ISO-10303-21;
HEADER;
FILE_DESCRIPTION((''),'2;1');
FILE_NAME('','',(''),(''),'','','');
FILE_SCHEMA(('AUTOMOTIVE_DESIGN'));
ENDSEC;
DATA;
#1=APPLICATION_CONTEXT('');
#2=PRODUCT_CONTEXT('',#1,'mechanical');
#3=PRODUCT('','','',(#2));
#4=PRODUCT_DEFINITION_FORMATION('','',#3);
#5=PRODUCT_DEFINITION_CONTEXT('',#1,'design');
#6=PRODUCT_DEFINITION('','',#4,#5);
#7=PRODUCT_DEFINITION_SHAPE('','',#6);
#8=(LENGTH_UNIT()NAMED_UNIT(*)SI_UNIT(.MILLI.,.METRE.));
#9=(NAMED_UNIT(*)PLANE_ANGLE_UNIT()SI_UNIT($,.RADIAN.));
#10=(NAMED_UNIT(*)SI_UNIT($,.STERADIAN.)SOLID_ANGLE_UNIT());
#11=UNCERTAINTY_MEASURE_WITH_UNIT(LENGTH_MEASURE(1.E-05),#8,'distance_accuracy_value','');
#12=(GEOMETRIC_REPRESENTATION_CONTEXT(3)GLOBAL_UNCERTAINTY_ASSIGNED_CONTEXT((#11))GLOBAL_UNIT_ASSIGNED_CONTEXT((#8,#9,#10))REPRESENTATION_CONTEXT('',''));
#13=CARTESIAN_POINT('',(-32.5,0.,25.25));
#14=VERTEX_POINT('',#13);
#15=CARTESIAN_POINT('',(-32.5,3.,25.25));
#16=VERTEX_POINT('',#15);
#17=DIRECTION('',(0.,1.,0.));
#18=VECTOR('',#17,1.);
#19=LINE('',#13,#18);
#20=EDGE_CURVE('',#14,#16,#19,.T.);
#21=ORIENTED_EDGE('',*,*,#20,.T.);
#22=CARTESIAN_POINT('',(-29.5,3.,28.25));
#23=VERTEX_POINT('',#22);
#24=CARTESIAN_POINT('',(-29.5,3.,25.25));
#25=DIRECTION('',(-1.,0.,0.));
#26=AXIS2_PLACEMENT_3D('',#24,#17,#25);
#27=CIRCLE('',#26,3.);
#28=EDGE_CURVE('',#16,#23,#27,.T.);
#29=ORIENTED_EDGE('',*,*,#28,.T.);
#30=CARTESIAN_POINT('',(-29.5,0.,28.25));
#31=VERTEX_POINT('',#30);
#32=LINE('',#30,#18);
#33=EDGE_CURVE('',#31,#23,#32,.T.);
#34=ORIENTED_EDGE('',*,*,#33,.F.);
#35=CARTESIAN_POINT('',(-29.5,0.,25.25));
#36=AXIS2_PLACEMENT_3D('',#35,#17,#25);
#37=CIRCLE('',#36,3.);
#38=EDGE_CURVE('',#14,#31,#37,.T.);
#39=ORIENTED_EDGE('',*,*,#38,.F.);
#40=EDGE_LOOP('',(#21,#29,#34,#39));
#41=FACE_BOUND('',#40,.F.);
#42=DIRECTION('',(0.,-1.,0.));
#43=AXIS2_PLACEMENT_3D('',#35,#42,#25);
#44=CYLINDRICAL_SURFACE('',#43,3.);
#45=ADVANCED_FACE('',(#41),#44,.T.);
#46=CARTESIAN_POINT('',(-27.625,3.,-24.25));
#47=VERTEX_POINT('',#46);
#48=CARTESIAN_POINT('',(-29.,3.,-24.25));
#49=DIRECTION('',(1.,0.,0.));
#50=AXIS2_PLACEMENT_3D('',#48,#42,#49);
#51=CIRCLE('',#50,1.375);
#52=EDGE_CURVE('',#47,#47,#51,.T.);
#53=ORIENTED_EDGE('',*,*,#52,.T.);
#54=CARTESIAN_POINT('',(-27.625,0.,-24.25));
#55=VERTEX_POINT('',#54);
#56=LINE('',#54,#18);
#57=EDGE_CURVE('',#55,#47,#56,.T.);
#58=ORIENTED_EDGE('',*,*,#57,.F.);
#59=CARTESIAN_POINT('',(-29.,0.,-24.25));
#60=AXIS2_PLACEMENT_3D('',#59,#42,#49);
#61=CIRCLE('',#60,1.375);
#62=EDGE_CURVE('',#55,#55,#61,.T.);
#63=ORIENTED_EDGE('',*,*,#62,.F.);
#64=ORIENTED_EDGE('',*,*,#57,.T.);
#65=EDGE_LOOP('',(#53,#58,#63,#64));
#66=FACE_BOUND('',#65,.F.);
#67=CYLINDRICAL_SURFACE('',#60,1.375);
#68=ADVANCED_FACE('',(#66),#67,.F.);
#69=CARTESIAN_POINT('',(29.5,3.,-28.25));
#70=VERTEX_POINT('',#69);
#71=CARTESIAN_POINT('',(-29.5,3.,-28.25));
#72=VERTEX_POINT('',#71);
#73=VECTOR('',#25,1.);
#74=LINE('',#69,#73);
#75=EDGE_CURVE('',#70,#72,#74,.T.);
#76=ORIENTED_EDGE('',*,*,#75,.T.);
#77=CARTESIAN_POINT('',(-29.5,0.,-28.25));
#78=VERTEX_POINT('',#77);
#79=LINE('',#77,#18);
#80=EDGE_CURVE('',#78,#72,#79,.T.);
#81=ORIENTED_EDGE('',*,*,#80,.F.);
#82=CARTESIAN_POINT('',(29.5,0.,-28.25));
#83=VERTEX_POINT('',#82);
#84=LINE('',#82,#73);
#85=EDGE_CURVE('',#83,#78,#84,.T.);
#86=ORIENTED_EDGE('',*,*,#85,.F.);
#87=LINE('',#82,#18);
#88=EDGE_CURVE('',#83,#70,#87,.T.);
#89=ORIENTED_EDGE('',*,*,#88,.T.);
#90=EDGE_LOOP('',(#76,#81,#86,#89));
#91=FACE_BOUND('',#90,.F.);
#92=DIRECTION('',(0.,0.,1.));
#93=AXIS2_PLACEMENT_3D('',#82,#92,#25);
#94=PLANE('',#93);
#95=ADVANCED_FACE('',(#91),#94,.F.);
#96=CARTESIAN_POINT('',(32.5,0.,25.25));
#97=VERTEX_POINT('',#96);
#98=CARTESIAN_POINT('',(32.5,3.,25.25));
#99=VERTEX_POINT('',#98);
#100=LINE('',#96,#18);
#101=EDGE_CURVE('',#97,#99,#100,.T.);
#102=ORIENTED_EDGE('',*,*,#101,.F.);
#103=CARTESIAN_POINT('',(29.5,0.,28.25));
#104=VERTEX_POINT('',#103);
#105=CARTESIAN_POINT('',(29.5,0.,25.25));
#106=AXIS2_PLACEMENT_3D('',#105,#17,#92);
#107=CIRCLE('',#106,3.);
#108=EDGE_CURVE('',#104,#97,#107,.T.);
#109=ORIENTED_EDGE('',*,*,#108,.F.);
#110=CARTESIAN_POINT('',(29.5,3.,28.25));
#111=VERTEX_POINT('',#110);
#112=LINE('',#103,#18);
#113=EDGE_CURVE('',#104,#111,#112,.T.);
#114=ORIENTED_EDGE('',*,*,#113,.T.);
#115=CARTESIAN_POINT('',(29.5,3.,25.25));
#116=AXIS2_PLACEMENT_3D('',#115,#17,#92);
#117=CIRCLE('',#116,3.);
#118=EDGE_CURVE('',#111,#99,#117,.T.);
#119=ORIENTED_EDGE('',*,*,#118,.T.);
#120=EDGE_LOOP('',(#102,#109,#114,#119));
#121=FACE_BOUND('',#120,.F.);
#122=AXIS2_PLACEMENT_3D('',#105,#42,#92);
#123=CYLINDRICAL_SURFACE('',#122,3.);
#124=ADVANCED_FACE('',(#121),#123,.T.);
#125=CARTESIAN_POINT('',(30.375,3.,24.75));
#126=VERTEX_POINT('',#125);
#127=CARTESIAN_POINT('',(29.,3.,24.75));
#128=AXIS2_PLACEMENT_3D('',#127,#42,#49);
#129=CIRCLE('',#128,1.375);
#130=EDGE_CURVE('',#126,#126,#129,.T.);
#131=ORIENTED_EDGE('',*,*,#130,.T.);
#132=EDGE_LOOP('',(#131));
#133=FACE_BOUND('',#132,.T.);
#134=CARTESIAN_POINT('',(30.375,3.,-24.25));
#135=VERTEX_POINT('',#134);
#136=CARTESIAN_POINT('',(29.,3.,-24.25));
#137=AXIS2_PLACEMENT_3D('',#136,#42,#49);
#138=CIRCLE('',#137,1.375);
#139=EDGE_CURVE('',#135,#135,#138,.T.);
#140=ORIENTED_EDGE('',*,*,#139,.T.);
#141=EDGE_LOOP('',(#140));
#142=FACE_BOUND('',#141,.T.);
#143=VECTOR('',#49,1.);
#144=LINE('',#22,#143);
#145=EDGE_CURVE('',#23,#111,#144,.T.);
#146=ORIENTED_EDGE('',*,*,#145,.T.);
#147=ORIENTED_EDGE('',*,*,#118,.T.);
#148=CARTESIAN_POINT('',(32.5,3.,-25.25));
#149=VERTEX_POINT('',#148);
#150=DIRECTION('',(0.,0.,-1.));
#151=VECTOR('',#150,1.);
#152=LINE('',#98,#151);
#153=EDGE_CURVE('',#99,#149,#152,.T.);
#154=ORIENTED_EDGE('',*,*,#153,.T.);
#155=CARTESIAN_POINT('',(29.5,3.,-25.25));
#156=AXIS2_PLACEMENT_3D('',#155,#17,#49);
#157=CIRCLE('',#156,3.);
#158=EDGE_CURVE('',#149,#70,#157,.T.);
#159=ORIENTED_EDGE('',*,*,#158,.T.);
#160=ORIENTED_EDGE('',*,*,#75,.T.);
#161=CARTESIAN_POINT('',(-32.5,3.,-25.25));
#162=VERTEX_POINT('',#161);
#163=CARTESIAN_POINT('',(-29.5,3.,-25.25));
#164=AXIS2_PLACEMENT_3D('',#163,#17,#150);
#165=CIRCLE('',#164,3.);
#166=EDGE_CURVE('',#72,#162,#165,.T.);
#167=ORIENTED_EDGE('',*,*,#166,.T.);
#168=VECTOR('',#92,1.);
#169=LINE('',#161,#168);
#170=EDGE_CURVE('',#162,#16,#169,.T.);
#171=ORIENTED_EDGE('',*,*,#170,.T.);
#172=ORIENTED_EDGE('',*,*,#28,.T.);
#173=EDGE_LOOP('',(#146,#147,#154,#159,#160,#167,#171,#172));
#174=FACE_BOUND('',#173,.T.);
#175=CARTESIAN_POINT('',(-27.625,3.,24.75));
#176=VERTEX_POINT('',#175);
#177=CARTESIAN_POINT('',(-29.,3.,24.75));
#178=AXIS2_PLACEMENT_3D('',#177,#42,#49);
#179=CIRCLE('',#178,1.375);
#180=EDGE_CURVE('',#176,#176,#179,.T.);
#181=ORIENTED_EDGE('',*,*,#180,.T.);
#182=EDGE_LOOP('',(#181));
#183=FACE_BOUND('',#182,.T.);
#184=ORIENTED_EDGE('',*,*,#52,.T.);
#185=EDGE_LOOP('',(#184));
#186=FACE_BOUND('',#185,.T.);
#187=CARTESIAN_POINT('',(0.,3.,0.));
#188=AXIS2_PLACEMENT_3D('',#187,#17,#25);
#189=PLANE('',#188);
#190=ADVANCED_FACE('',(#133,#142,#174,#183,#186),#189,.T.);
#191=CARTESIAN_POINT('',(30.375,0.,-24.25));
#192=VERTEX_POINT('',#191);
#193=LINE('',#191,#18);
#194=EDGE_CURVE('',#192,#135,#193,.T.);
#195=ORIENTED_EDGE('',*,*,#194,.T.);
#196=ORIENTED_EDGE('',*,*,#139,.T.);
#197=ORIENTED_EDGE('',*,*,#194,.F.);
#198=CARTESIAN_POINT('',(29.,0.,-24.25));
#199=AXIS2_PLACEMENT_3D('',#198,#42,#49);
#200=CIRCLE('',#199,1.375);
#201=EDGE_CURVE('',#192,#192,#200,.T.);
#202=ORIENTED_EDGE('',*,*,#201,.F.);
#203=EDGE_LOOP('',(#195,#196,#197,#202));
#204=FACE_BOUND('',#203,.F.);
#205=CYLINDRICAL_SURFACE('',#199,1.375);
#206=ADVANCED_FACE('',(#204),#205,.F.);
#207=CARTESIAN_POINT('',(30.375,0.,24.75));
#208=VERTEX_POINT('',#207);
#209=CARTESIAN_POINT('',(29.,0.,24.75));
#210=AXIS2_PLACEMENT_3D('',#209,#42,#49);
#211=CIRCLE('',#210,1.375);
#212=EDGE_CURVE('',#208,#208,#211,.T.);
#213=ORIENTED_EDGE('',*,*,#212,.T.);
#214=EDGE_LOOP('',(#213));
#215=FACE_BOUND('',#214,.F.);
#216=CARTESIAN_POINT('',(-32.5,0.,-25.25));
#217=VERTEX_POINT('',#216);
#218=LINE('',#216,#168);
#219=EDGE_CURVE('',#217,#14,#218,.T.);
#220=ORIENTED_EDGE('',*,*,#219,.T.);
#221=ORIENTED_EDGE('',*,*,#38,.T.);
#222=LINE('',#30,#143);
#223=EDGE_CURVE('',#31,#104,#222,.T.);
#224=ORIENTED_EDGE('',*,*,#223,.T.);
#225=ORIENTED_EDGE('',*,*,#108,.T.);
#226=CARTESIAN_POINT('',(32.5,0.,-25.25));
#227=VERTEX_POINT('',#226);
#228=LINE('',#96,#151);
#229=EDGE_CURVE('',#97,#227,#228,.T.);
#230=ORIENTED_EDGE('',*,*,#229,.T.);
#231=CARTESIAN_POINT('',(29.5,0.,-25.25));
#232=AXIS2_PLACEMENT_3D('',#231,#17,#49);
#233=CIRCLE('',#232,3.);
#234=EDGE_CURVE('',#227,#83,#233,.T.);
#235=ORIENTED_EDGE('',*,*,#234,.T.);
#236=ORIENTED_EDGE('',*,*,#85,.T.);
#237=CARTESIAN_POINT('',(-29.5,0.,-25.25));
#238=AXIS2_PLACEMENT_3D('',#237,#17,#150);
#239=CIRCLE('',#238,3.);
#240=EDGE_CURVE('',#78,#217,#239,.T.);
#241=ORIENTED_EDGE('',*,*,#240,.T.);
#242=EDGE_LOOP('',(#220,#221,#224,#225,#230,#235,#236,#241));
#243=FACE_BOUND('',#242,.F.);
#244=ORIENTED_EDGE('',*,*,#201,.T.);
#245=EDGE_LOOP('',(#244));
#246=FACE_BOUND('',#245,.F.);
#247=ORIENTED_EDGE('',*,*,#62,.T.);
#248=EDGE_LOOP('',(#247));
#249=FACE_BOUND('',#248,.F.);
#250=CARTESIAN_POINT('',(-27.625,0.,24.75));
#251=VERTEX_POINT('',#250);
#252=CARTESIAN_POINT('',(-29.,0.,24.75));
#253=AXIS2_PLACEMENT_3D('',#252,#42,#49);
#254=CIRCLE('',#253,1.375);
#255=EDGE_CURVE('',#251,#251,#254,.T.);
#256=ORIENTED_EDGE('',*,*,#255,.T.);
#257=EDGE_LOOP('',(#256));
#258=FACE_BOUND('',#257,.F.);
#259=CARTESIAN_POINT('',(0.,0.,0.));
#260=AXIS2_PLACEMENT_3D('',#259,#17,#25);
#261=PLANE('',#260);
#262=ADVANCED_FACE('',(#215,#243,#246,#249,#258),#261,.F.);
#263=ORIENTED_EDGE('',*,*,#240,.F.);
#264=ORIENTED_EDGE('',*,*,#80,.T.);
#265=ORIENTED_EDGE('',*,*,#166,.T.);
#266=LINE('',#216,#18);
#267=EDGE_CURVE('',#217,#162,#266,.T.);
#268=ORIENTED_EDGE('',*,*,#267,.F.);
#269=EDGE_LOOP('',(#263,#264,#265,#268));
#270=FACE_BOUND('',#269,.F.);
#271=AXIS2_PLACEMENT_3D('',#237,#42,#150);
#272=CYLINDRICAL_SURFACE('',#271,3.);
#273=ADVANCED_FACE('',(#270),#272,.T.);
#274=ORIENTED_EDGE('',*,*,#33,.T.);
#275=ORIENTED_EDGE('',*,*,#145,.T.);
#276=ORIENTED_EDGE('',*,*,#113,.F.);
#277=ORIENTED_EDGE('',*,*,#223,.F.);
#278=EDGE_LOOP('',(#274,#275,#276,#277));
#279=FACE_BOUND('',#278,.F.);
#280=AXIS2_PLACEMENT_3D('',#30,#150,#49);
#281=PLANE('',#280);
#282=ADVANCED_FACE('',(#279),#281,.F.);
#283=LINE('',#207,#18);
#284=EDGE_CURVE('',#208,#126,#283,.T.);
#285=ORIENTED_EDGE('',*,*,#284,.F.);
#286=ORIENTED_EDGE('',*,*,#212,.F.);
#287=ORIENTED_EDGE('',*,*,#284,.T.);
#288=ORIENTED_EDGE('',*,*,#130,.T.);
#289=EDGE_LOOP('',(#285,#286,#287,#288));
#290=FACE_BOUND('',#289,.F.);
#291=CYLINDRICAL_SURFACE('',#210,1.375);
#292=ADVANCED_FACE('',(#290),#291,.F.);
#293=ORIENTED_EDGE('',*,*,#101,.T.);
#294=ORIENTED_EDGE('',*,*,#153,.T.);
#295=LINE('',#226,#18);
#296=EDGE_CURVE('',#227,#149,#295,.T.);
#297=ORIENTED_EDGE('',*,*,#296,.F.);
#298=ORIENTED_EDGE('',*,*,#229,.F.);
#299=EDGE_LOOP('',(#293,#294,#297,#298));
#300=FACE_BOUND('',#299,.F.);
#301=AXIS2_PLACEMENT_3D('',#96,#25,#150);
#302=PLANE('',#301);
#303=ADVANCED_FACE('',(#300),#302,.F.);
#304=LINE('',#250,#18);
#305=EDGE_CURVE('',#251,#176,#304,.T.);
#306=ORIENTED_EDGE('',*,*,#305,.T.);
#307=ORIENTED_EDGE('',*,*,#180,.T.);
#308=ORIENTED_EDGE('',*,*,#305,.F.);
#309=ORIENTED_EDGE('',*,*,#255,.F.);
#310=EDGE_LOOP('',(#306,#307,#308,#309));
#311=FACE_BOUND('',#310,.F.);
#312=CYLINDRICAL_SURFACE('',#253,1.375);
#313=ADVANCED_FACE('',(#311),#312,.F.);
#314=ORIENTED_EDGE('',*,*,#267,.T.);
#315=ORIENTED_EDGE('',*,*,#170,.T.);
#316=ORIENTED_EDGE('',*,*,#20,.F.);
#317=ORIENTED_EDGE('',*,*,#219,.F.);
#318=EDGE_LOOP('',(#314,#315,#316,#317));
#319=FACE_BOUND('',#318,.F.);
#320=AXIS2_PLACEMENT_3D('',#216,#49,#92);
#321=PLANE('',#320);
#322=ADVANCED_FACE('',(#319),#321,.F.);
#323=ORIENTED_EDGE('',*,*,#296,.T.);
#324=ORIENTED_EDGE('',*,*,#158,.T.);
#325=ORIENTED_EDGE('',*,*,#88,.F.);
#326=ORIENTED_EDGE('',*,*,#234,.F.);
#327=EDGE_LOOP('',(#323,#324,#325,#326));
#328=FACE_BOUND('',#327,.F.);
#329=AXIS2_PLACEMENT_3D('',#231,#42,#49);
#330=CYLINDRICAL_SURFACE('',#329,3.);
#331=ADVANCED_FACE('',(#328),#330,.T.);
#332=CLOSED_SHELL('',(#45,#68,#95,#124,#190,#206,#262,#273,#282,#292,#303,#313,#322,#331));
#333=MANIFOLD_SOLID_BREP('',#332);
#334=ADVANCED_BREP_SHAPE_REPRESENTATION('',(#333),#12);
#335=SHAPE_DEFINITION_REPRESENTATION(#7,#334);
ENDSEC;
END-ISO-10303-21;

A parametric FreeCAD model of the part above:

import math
import FreeCAD as App
import Part
import Sketcher
Q = App.Units.Quantity

doc = App.newDocument("Part")
params = doc.addObject("Spreadsheet::Sheet", "Params")
for row, (alias, value) in enumerate([
    ("sketch1_radius", "3 mm"),
    ("sketch1_width", "59 mm"),
    ("pad1_length", "3 mm"),
    ("sketch2_diameter", "2.75 mm"),
    ("pocket1_length", "3 mm"),
], start=1):
    params.set(f"A{row}", alias)
    params.set(f"B{row}", "=" + value)
    params.setAlias(f"B{row}", alias)

body = doc.addObject("PartDesign::Body", "Body")

# Sketch on XZ plane
sketch1 = body.newObject("Sketcher::SketchObject", "Sketch")
sketch1.AttachmentSupport = (doc.getObject("XZ_Plane"), [""])
sketch1.MapMode = "FlatFace"
sketch1.addGeometry(Part.ArcOfCircle(Part.Circle(App.Vector(-29.5, 25.2, 0), App.Vector(0, 0, 1), 3), math.radians(90), math.radians(180)), False)
sketch1.addGeometry(Part.LineSegment(App.Vector(-29.5, 28.2, 0), App.Vector(29.5, 28.2, 0)), False)
sketch1.addGeometry(Part.ArcOfCircle(Part.Circle(App.Vector(29.5, 25.2, 0), App.Vector(0, 0, 1), 3), math.radians(0), math.radians(90)), False)
sketch1.addGeometry(Part.LineSegment(App.Vector(32.5, 25.2, 0), App.Vector(32.5, -25.2, 0)), False)
sketch1.addGeometry(Part.ArcOfCircle(Part.Circle(App.Vector(29.5, -25.2, 0), App.Vector(0, 0, 1), 3), math.radians(-90), math.radians(0)), False)
sketch1.addGeometry(Part.LineSegment(App.Vector(29.5, -28.2, 0), App.Vector(-29.5, -28.2, 0)), False)
sketch1.addGeometry(Part.ArcOfCircle(Part.Circle(App.Vector(-29.5, -25.2, 0), App.Vector(0, 0, 1), 3), math.radians(180), math.radians(270)), False)
sketch1.addGeometry(Part.LineSegment(App.Vector(-32.5, -25.2, 0), App.Vector(-32.5, 25.2, 0)), False)
sketch1.addConstraint(Sketcher.Constraint("Tangent", 0, 1, 1, 1))
sketch1.addConstraint(Sketcher.Constraint("Tangent", 1, 2, 2, 2))
sketch1.addConstraint(Sketcher.Constraint("Tangent", 2, 1, 3, 1))
sketch1.addConstraint(Sketcher.Constraint("Tangent", 3, 2, 4, 2))
sketch1.addConstraint(Sketcher.Constraint("Tangent", 4, 1, 5, 1))
sketch1.addConstraint(Sketcher.Constraint("Tangent", 5, 2, 6, 2))
sketch1.addConstraint(Sketcher.Constraint("Tangent", 6, 1, 7, 1))
sketch1.addConstraint(Sketcher.Constraint("Tangent", 7, 2, 0, 2))
sketch1.addConstraint(Sketcher.Constraint("Horizontal", 1))
sketch1.addConstraint(Sketcher.Constraint("Vertical", 3))
sketch1.addConstraint(Sketcher.Constraint("Horizontal", 5))
sketch1.addConstraint(Sketcher.Constraint("Vertical", 7))
sketch1.addConstraint(Sketcher.Constraint("Equal", 0, 2))
sketch1.addConstraint(Sketcher.Constraint("Equal", 2, 4))
sketch1.addConstraint(Sketcher.Constraint("Equal", 4, 6))
sketch1.addConstraint(Sketcher.Constraint("Symmetric", 0, 3, 4, 3, -1, 1))
sketch1.addConstraint(Sketcher.Constraint("Radius", 0, Q("3 mm")))
sketch1.addConstraint(Sketcher.Constraint("DistanceY", 4, 1, 1, 2, Q("56.5 mm")))
sketch1.addConstraint(Sketcher.Constraint("DistanceX", 1, 1, 1, 2, Q("59 mm")))
sketch1.setExpression("Constraints[16]", "Params.sketch1_radius")
sketch1.setExpression("Constraints[18]", "Params.sketch1_width")
pad1 = body.newObject("PartDesign::Pad", "Pad")
pad1.Profile = sketch1
pad1.setExpression("Length", "Params.pad1_length")
pad1.Reversed = True

# Sketch on XZ plane
sketch2 = body.newObject("Sketcher::SketchObject", "Sketch001")
sketch2.AttachmentSupport = (doc.getObject("XZ_Plane"), [""])
sketch2.MapMode = "FlatFace"
sketch2.addGeometry(Part.Circle(App.Vector(-29, 24.8, 0), App.Vector(0, 0, 1), 1.4), False)
sketch2.addGeometry(Part.Circle(App.Vector(29, 24.8, 0), App.Vector(0, 0, 1), 1.4), False)
sketch2.addGeometry(Part.Circle(App.Vector(29, -24.2, 0), App.Vector(0, 0, 1), 1.4), False)
sketch2.addGeometry(Part.Circle(App.Vector(-29, -24.2, 0), App.Vector(0, 0, 1), 1.4), False)
sketch2.addConstraint(Sketcher.Constraint("Equal", 0, 1))
sketch2.addConstraint(Sketcher.Constraint("Equal", 1, 2))
sketch2.addConstraint(Sketcher.Constraint("Equal", 2, 3))
sketch2.addConstraint(Sketcher.Constraint("Symmetric", 0, 3, 1, 3, -2))
sketch2.addConstraint(Sketcher.Constraint("Symmetric", 2, 3, 3, 3, -2))
sketch2.addConstraint(Sketcher.Constraint("Vertical", 1, 3, 2, 3))
sketch2.addConstraint(Sketcher.Constraint("Diameter", 0, Q("2.75 mm")))
sketch2.addConstraint(Sketcher.Constraint("DistanceX", 0, 3, 1, 3, Q("58 mm")))
sketch2.addConstraint(Sketcher.Constraint("DistanceY", 2, 3, 1, 3, Q("49 mm")))
sketch2.addConstraint(Sketcher.Constraint("DistanceY", -1, 1, 0, 3, Q("24.75 mm")))
sketch2.setExpression("Constraints[6]", "Params.sketch2_diameter")
pocket1 = body.newObject("PartDesign::Pocket", "Pocket")
pocket1.Profile = sketch2
pocket1.setExpression("Length", "Params.pocket1_length")

doc.recompute()
